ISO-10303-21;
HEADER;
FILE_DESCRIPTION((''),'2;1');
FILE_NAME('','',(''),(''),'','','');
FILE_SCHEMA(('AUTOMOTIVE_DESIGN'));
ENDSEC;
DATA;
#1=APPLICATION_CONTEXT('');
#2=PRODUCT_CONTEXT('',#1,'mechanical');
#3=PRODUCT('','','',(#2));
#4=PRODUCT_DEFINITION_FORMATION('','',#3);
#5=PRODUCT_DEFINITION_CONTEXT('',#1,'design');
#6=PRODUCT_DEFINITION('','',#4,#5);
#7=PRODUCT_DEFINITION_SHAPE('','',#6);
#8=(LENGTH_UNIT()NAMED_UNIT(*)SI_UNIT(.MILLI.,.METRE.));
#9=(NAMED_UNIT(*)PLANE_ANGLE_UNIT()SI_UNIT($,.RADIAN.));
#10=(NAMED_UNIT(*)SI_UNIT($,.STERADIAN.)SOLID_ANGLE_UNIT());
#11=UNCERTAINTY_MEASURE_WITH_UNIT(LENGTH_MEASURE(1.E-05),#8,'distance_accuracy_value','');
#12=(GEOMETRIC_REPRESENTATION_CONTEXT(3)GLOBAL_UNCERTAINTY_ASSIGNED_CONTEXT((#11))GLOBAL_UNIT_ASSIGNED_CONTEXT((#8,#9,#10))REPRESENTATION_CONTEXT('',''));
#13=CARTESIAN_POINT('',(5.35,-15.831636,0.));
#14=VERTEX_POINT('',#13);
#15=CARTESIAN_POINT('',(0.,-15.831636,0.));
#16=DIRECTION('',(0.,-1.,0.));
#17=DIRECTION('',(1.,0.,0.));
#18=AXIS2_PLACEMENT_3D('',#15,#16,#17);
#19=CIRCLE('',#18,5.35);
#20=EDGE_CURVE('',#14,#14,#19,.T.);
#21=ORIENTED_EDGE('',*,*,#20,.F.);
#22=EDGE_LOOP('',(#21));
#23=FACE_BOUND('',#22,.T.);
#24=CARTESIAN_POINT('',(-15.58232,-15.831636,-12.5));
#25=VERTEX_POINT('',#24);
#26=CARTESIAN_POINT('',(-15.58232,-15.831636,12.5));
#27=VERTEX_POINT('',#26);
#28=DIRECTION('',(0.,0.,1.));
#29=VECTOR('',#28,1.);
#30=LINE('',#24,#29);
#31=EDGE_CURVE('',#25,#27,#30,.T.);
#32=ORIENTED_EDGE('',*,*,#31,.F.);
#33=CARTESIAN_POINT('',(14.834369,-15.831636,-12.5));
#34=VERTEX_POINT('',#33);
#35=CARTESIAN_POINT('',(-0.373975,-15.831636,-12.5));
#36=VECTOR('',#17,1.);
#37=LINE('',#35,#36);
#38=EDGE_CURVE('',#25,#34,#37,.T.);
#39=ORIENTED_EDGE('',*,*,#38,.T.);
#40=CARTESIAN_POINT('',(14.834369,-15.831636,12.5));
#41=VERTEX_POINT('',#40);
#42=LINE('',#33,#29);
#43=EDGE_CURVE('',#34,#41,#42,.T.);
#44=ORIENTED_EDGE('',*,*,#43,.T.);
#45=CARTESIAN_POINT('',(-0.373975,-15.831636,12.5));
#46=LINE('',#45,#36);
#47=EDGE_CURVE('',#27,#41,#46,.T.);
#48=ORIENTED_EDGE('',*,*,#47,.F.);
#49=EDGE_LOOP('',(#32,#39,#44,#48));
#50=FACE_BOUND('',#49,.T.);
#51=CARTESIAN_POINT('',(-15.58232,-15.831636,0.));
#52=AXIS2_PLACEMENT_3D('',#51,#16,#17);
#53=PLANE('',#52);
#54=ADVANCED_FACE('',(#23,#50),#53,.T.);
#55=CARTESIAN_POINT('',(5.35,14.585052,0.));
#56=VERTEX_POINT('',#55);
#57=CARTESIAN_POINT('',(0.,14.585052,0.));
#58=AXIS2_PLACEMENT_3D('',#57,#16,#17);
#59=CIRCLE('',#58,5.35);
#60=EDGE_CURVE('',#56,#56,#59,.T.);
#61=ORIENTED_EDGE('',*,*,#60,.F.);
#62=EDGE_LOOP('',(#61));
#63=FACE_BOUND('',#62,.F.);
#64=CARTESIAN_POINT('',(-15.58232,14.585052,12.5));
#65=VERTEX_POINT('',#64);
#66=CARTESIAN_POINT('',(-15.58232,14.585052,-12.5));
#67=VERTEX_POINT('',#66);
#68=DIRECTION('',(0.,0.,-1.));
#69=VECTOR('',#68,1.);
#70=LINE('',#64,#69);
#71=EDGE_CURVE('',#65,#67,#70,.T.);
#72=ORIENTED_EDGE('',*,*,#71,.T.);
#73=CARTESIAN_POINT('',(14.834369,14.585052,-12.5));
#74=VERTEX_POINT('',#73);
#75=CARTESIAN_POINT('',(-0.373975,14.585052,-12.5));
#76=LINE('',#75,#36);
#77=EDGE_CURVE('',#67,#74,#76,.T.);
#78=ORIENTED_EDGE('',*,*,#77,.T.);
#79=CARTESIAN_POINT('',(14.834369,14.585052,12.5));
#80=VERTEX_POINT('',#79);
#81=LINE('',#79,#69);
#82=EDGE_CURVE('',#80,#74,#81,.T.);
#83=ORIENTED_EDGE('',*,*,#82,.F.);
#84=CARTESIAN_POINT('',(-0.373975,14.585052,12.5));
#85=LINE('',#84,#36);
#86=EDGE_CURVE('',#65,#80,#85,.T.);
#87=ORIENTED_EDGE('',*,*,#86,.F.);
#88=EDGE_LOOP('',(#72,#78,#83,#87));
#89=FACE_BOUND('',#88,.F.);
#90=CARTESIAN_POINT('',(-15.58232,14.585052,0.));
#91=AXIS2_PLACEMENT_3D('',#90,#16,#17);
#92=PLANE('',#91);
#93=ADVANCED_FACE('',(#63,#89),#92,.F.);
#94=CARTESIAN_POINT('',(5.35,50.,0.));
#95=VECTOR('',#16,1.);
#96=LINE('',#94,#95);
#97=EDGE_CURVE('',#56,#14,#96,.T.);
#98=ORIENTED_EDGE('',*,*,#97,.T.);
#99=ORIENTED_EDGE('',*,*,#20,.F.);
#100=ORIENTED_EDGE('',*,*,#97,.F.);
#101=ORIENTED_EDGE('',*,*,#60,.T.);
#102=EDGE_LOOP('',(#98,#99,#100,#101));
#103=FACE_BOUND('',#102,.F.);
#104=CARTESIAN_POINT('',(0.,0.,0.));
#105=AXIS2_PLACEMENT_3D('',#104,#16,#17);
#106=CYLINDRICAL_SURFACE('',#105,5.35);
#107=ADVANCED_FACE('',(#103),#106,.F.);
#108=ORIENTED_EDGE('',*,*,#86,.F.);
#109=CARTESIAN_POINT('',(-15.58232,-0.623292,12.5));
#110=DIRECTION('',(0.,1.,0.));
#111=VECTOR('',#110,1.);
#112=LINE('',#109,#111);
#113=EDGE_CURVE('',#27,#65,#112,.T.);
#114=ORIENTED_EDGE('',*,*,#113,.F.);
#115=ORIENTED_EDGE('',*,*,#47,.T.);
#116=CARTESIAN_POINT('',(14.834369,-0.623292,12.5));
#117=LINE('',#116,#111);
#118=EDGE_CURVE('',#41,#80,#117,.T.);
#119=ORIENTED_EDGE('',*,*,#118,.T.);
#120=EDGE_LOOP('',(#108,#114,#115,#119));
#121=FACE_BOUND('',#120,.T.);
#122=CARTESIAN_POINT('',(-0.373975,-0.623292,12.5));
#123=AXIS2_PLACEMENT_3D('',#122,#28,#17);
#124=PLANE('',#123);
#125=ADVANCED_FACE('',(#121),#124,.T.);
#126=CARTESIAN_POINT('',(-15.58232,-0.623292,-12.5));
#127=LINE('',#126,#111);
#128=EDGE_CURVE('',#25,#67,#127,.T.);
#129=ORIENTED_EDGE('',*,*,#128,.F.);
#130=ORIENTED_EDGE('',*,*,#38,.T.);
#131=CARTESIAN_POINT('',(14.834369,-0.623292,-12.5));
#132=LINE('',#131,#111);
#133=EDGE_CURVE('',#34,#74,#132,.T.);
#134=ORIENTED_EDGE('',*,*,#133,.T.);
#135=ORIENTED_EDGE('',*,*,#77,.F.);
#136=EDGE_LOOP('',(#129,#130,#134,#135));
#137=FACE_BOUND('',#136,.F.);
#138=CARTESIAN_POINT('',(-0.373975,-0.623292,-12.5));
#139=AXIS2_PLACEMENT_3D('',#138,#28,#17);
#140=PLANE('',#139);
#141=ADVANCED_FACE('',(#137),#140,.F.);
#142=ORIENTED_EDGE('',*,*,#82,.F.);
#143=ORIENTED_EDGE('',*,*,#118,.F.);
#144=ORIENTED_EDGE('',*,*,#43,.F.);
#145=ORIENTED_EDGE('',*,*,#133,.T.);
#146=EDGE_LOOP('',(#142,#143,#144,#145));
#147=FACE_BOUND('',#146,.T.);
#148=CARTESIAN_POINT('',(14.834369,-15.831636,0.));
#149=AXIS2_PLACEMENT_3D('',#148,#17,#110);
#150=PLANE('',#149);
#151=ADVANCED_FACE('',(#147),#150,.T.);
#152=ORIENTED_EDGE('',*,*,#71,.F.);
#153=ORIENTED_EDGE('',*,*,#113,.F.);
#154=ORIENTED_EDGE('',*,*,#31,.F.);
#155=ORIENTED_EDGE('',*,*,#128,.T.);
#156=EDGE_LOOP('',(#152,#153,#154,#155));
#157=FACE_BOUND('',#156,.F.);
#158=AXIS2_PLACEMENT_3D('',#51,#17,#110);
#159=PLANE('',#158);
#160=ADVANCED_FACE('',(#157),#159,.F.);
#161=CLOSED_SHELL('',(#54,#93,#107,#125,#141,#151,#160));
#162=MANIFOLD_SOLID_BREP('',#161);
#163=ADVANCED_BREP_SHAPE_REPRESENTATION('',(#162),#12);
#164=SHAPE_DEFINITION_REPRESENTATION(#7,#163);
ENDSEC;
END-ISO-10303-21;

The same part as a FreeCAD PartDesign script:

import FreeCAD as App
import Part
import Sketcher
Q = App.Units.Quantity


def add_polygon(sketch, points):
    """Adds a closed chain of lines whose ends are joined by coincident constraints."""
    first, n = sketch.GeometryCount, len(points)
    for a, b in zip(points, points[1:] + points[:1]):
        sketch.addGeometry(Part.LineSegment(App.Vector(*a, 0), App.Vector(*b, 0)), False)
    for i in range(n):
        sketch.addConstraint(Sketcher.Constraint("Coincident", first + i, 2, first + (i + 1) % n, 1))

doc = App.newDocument("Part")
body = doc.addObject("PartDesign::Body", "Body")

sketch1 = body.newObject("Sketcher::SketchObject", "Sketch")
sketch1.AttachmentSupport = (doc.getObject("XY_Plane"), [""])
sketch1.MapMode = "FlatFace"
add_polygon(sketch1, [(-16, 15), (-16, -16), (15, -16), (15, 15)])
sketch1.addConstraint(Sketcher.Constraint("Vertical", 0))
sketch1.addConstraint(Sketcher.Constraint("Horizontal", 1))
sketch1.addConstraint(Sketcher.Constraint("Vertical", 2))
sketch1.addConstraint(Sketcher.Constraint("Horizontal", 3))
sketch1.addConstraint(Sketcher.Constraint("Equal", 3, 0))
sketch1.addConstraint(Sketcher.Constraint("DistanceX", 1, 1, 1, 2, Q("30.416689 mm")))
sketch1.addConstraint(Sketcher.Constraint("DistanceX", 0, 2, -1, 1, Q("15.58232 mm")))
sketch1.addConstraint(Sketcher.Constraint("DistanceY", -1, 1, 2, 2, Q("14.585052 mm")))
pad1 = body.newObject("PartDesign::Pad", "Pad")
pad1.Profile = sketch1
pad1.Length = 25
pad1.Midplane = True

sketch2 = body.newObject("Sketcher::SketchObject", "Sketch001")
sketch2.AttachmentSupport = (doc.getObject("XZ_Plane"), [""])
sketch2.MapMode = "FlatFace"
sketch2.addGeometry(Part.Circle(App.Vector(0, 0, 0), App.Vector(0, 0, 1), 5), False)
sketch2.addConstraint(Sketcher.Constraint("Coincident", 0, 3, -1, 1))
sketch2.addConstraint(Sketcher.Constraint("Diameter", 0, Q("10.7 mm")))
pocket1 = body.newObject("PartDesign::Pocket", "Pocket")
pocket1.Profile = sketch2
pocket1.Length = 100
pocket1.Midplane = True

doc.recompute()
